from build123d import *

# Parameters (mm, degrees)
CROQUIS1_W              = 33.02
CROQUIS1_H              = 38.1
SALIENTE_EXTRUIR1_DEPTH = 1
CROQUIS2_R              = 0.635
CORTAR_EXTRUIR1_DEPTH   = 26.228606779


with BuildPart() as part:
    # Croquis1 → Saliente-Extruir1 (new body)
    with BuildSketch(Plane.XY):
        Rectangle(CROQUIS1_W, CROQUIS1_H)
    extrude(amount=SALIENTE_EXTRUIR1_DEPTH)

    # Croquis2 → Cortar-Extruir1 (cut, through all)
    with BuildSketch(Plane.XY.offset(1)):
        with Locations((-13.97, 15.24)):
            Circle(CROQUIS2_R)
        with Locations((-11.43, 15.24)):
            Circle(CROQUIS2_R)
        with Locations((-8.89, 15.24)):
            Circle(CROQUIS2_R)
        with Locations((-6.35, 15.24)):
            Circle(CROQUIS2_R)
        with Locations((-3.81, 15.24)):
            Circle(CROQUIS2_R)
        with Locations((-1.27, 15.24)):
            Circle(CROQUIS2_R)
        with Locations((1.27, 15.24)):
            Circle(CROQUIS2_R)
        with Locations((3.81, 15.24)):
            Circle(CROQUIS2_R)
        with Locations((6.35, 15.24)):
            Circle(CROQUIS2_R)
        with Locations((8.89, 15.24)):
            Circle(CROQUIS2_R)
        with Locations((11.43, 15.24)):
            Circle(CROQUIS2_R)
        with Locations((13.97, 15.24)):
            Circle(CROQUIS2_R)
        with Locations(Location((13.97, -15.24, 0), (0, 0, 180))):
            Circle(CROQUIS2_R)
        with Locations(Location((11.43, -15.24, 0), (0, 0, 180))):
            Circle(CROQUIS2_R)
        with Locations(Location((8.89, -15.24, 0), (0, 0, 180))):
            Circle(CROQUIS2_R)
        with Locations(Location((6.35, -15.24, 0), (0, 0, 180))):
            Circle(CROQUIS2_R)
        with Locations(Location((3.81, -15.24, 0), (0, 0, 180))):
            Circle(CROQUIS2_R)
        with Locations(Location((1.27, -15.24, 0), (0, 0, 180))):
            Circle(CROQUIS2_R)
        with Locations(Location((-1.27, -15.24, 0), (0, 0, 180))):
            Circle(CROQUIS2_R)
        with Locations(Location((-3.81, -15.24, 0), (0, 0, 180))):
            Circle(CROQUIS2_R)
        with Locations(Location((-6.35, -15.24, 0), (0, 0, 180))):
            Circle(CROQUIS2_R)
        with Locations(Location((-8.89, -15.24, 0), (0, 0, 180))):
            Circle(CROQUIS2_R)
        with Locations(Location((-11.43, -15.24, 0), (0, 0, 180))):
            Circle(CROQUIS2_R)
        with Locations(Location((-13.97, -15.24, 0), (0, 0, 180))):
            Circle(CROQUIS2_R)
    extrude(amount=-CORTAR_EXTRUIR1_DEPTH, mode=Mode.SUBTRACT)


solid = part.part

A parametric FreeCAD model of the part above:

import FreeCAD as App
import Part
import Sketcher
Q = App.Units.Quantity


def add_polygon(sketch, points):
    """Adds a closed chain of lines whose ends are joined by coincident constraints."""
    first, n = sketch.GeometryCount, len(points)
    for a, b in zip(points, points[1:] + points[:1]):
        sketch.addGeometry(Part.LineSegment(App.Vector(*a, 0), App.Vector(*b, 0)), False)
    for i in range(n):
        sketch.addConstraint(Sketcher.Constraint("Coincident", first + i, 2, first + (i + 1) % n, 1))

doc = App.newDocument("Part")
params = doc.addObject("Spreadsheet::Sheet", "Params")
for row, (alias, value) in enumerate([
    ("sketch1_width", "1.3 in"),
    ("sketch1_height", "1.5 in"),
    ("pad1_length", "1 mm"),
    ("sketch2_diameter", "0.05 in"),
], start=1):
    params.set(f"A{row}", alias)
    params.set(f"B{row}", "=" + value)
    params.setAlias(f"B{row}", alias)

body = doc.addObject("PartDesign::Body", "Body")

# Sketch on XY plane
sketch1 = doc.addObject("Sketcher::SketchObject", "Sketch")
body.addObject(sketch1)
sketch1.AttachmentSupport = (doc.XY_Plane, [""])
sketch1.MapMode = "FlatFace"
add_polygon(sketch1, [(-16.51, 19.05), (-16.51, -19.05), (16.51, -19.05), (16.51, 19.05)])  # lines 0-3
sketch1.addConstraint([
    Sketcher.Constraint("Vertical", 0),
    Sketcher.Constraint("Horizontal", 1),
    Sketcher.Constraint("Vertical", 2),
    Sketcher.Constraint("Horizontal", 3),
    Sketcher.Constraint("Symmetric", 0, 2, 2, 2, -1, 1),
    Sketcher.Constraint("DistanceX", 1, 1, 1, 2, Q("1.3 in")),
    Sketcher.Constraint("DistanceY", 0, 2, 0, 1, Q("1.5 in")),
])
sketch1.setExpression("Constraints[9]", "Params.sketch1_width")
sketch1.setExpression("Constraints[10]", "Params.sketch1_height")
pad1 = doc.addObject("PartDesign::Pad", "Pad")
body.addObject(pad1)
pad1.Profile = sketch1
pad1.setExpression("Length", "Params.pad1_length")

# Sketch on XY plane
sketch2 = doc.addObject("Sketcher::SketchObject", "Sketch001")
body.addObject(sketch2)
sketch2.AttachmentSupport = (doc.XY_Plane, [""])
sketch2.MapMode = "FlatFace"
sketch2.AttachmentOffset = App.Placement(App.Vector(0, 0, 1), App.Rotation())
sketch2.addGeometry([
    Part.Circle(App.Vector(-13.97, 15.24, 0), App.Vector(0, 0, 1), 0.635),  # 0
    Part.Circle(App.Vector(-11.43, 15.24, 0), App.Vector(0, 0, 1), 0.635),  # 1
    Part.Circle(App.Vector(-8.89, 15.24, 0), App.Vector(0, 0, 1), 0.635),  # 2
    Part.Circle(App.Vector(-6.35, 15.24, 0), App.Vector(0, 0, 1), 0.635),  # 3
    Part.Circle(App.Vector(-3.81, 15.24, 0), App.Vector(0, 0, 1), 0.635),  # 4
    Part.Circle(App.Vector(-1.27, 15.24, 0), App.Vector(0, 0, 1), 0.635),  # 5
    Part.Circle(App.Vector(1.27, 15.24, 0), App.Vector(0, 0, 1), 0.635),  # 6
    Part.Circle(App.Vector(3.81, 15.24, 0), App.Vector(0, 0, 1), 0.635),  # 7
    Part.Circle(App.Vector(6.35, 15.24, 0), App.Vector(0, 0, 1), 0.635),  # 8
    Part.Circle(App.Vector(8.89, 15.24, 0), App.Vector(0, 0, 1), 0.635),  # 9
    Part.Circle(App.Vector(11.43, 15.24, 0), App.Vector(0, 0, 1), 0.635),  # 10
    Part.Circle(App.Vector(13.97, 15.24, 0), App.Vector(0, 0, 1), 0.635),  # 11
    Part.Circle(App.Vector(13.97, -15.24, 0), App.Vector(0, 0, 1), 0.635),  # 12
    Part.Circle(App.Vector(11.43, -15.24, 0), App.Vector(0, 0, 1), 0.635),  # 13
    Part.Circle(App.Vector(8.89, -15.24, 0), App.Vector(0, 0, 1), 0.635),  # 14
    Part.Circle(App.Vector(6.35, -15.24, 0), App.Vector(0, 0, 1), 0.635),  # 15
    Part.Circle(App.Vector(3.81, -15.24, 0), App.Vector(0, 0, 1), 0.635),  # 16
    Part.Circle(App.Vector(1.27, -15.24, 0), App.Vector(0, 0, 1), 0.635),  # 17
    Part.Circle(App.Vector(-1.27, -15.24, 0), App.Vector(0, 0, 1), 0.635),  # 18
    Part.Circle(App.Vector(-3.81, -15.24, 0), App.Vector(0, 0, 1), 0.635),  # 19
    Part.Circle(App.Vector(-6.35, -15.24, 0), App.Vector(0, 0, 1), 0.635),  # 20
    Part.Circle(App.Vector(-8.89, -15.24, 0), App.Vector(0, 0, 1), 0.635),  # 21
    Part.Circle(App.Vector(-11.43, -15.24, 0), App.Vector(0, 0, 1), 0.635),  # 22
    Part.Circle(App.Vector(-13.97, -15.24, 0), App.Vector(0, 0, 1), 0.635),  # 23
], False)
sketch2.addConstraint([
    Sketcher.Constraint("Equal", 0, 1),
    Sketcher.Constraint("Equal", 1, 2),
    Sketcher.Constraint("Equal", 2, 3),
    Sketcher.Constraint("Equal", 3, 4),
    Sketcher.Constraint("Equal", 4, 5),
    Sketcher.Constraint("Equal", 5, 6),
    Sketcher.Constraint("Equal", 6, 7),
    Sketcher.Constraint("Equal", 7, 8),
    Sketcher.Constraint("Equal", 8, 9),
    Sketcher.Constraint("Equal", 9, 10),
    Sketcher.Constraint("Equal", 10, 11),
    Sketcher.Constraint("Equal", 11, 12),
    Sketcher.Constraint("Equal", 12, 13),
    Sketcher.Constraint("Equal", 13, 14),
    Sketcher.Constraint("Equal", 14, 15),
    Sketcher.Constraint("Equal", 15, 16),
    Sketcher.Constraint("Equal", 16, 17),
    Sketcher.Constraint("Equal", 17, 18),
    Sketcher.Constraint("Equal", 18, 19),
    Sketcher.Constraint("Equal", 19, 20),
    Sketcher.Constraint("Equal", 20, 21),
    Sketcher.Constraint("Equal", 21, 22),
    Sketcher.Constraint("Equal", 22, 23),
    Sketcher.Constraint("Symmetric", 0, 3, 12, 3, -1, 1),
    Sketcher.Constraint("Symmetric", 1, 3, 13, 3, -1, 1),
    Sketcher.Constraint("Symmetric", 2, 3, 14, 3, -1, 1),
    Sketcher.Constraint("Symmetric", 3, 3, 15, 3, -1, 1),
    Sketcher.Constraint("Symmetric", 4, 3, 16, 3, -1, 1),
    Sketcher.Constraint("Symmetric", 5, 3, 17, 3, -1, 1),
    Sketcher.Constraint("Symmetric", 6, 3, 18, 3, -1, 1),
    Sketcher.Constraint("Symmetric", 7, 3, 19, 3, -1, 1),
    Sketcher.Constraint("Symmetric", 8, 3, 20, 3, -1, 1),
    Sketcher.Constraint("Symmetric", 9, 3, 21, 3, -1, 1),
    Sketcher.Constraint("Symmetric", 10, 3, 22, 3, -1, 1),
    Sketcher.Constraint("Symmetric", 11, 3, 23, 3, -1, 1),
    Sketcher.Constraint("Symmetric", 5, 3, 6, 3, -2),
    Sketcher.Constraint("Symmetric", 4, 3, 7, 3, -2),
    Sketcher.Constraint("Symmetric", 3, 3, 8, 3, -2),
    Sketcher.Constraint("Symmetric", 2, 3, 9, 3, -2),
    Sketcher.Constraint("Symmetric", 1, 3, 10, 3, -2),
    Sketcher.Constraint("Symmetric", 0, 3, 11, 3, -2),
    Sketcher.Constraint("Horizontal", 0, 3, 1, 3),
    Sketcher.Constraint("Horizontal", 1, 3, 2, 3),
    Sketcher.Constraint("Horizontal", 2, 3, 3, 3),
    Sketcher.Constraint("Horizontal", 3, 3, 4, 3),
    Sketcher.Constraint("Horizontal", 4, 3, 5, 3),
    Sketcher.Constraint("Diameter", 0, Q("0.05 in")),
    Sketcher.Constraint("DistanceY", -1, 1, 0, 3, Q("0.6 in")),
    Sketcher.Constraint("DistanceX", 0, 3, 1, 3, Q("0.1 in")),
    Sketcher.Constraint("DistanceX", 1, 3, 2, 3, Q("0.1 in")),
    Sketcher.Constraint("DistanceX", 2, 3, 3, 3, Q("0.1 in")),
    Sketcher.Constraint("DistanceX", 3, 3, 4, 3, Q("0.1 in")),
    Sketcher.Constraint("DistanceX", 4, 3, 5, 3, Q("0.1 in")),
    Sketcher.Constraint("DistanceX", 5, 3, 6, 3, Q("0.1 in")),
])
sketch2.setExpression("Constraints[46]", "Params.sketch2_diameter")
pocket1 = doc.addObject("PartDesign::Pocket", "Pocket")
body.addObject(pocket1)
pocket1.Profile = sketch2
pocket1.Type = "ThroughAll"

doc.recompute()
